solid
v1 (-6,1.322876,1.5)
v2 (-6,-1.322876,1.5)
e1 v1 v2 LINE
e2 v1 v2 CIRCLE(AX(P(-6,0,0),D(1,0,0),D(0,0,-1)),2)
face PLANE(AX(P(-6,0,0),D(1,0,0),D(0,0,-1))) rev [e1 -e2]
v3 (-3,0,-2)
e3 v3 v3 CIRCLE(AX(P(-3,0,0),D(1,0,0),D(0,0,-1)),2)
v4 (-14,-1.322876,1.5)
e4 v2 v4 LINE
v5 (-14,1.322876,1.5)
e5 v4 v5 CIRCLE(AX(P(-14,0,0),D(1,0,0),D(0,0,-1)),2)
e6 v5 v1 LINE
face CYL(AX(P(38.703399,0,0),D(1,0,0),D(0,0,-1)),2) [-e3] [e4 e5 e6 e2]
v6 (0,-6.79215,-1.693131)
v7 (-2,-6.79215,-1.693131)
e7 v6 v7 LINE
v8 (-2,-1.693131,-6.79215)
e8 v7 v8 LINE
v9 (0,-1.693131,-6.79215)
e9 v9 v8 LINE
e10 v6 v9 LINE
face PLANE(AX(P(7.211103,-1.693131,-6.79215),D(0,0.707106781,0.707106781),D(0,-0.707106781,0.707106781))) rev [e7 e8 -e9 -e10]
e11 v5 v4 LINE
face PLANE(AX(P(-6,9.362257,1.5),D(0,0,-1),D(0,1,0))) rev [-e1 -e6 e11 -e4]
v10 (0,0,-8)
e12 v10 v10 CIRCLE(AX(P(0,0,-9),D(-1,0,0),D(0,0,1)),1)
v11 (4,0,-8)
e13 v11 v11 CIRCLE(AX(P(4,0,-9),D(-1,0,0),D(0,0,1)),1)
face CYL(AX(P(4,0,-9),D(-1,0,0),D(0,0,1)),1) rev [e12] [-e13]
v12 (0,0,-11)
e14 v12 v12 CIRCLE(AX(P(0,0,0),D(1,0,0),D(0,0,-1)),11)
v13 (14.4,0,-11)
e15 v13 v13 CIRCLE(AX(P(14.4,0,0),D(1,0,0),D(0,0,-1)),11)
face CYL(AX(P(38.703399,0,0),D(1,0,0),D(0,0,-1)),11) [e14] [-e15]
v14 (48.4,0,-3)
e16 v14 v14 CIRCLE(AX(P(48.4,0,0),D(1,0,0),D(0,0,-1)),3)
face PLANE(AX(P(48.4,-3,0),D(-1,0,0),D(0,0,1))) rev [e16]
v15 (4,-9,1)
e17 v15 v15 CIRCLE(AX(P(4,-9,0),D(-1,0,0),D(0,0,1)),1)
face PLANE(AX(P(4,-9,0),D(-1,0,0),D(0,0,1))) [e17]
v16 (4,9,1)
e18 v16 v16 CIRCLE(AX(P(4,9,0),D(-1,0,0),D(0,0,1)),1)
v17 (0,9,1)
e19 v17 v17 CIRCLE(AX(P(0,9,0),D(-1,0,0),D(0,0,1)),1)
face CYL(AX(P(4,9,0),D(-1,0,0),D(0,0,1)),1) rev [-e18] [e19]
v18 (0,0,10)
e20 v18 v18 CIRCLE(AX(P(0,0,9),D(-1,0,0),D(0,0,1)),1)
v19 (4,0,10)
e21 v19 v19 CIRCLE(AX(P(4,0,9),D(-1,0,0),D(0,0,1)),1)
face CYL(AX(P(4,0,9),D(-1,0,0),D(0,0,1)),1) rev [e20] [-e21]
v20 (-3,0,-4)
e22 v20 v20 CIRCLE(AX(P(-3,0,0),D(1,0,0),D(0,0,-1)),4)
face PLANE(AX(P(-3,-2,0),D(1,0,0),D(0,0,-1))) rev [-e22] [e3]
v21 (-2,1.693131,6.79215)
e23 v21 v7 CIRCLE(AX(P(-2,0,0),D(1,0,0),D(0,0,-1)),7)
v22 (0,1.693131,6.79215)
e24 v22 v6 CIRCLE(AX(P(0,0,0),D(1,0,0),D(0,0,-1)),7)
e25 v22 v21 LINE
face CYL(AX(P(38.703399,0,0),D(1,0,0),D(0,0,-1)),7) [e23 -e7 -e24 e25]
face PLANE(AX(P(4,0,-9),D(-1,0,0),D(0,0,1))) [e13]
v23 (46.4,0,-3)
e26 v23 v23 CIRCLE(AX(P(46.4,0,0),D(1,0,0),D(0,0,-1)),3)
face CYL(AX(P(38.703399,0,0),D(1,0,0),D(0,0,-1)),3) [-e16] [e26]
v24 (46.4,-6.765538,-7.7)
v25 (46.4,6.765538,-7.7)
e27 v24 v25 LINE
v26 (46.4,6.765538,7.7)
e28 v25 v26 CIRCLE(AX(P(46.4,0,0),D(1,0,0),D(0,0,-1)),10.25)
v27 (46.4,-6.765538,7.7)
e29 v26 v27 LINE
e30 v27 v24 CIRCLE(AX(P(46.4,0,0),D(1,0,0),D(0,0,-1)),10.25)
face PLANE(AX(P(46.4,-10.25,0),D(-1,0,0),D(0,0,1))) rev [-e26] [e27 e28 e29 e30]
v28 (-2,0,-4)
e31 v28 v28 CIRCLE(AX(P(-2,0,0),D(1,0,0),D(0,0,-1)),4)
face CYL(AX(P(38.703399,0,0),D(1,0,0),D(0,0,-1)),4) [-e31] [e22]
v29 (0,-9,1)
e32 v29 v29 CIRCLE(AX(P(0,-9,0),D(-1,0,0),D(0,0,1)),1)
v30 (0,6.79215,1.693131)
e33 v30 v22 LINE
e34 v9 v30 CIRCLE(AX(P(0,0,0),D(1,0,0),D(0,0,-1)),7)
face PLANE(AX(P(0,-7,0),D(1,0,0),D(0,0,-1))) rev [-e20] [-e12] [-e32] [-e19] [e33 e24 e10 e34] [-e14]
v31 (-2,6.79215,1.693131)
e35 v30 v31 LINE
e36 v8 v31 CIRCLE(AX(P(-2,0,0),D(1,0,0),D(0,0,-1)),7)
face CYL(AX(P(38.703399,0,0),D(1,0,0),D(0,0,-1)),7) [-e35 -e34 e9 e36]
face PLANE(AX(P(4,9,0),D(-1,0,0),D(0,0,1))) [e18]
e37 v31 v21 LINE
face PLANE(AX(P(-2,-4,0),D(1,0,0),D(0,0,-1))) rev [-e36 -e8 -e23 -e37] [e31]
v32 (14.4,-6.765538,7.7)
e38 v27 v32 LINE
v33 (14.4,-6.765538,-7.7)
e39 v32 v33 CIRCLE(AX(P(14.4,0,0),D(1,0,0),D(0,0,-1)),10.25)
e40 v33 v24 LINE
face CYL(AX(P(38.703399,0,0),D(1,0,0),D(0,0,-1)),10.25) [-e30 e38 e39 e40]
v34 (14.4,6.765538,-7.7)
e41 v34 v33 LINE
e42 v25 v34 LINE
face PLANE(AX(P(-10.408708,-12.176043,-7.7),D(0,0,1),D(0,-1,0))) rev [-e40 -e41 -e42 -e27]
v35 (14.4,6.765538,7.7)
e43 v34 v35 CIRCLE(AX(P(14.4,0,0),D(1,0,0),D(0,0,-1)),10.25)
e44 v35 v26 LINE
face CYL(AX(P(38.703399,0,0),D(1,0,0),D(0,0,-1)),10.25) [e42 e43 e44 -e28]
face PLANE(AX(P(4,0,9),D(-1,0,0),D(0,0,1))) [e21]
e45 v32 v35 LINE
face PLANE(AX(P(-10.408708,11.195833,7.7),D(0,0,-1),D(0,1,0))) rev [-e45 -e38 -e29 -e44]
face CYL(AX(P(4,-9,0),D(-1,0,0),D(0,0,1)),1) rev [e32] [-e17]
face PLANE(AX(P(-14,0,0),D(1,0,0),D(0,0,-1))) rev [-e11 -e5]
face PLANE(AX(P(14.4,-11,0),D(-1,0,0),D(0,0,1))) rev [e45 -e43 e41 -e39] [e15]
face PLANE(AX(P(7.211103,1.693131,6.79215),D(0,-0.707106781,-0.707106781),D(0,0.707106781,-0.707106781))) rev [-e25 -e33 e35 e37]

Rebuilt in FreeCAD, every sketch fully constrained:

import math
import FreeCAD as App
import Part
import Sketcher

V = App.Vector
Q = App.Units.Quantity

doc = App.newDocument("Part")
params = doc.addObject("Spreadsheet::Sheet", "Params")
for row, (alias, value) in enumerate([
    ("sketch1_width", "11 mm"),
    ("sketch1_width2", "1 mm"),
    ("sketch1_width3", "2 mm"),
    ("sketch1_width4", "32 mm"),
    ("sketch1_height", "3 mm"),
    ("revolution_angle", "360 deg"),
    ("pocket1_length", "32 mm"),
    ("sketch3_radius", "7 mm"),
    ("pocket2_length", "2 mm"),
    ("sketch4_diameter", "2 mm"),
    ("pocket3_length", "4 mm"),
    ("pocket4_length", "8 mm"),
], start=1):
    params.set(f"A{row}", alias)
    params.set(f"B{row}", "=" + value)
    params.setAlias(f"B{row}", alias)

body = doc.addObject("PartDesign::Body", "Body")

# Sketch on XY plane
sketch1 = body.newObject("Sketcher::SketchObject", "Sketch")
sketch1.AttachmentSupport = (doc.getObject("XY_Plane"), [""])
sketch1.MapMode = "FlatFace"
sketch1.addGeometry(Part.LineSegment(V(-14, 0, 0), V(-14, -2, 0)), False)
sketch1.addGeometry(Part.LineSegment(V(-14, -2, 0), V(-3, -2, 0)), False)
sketch1.addGeometry(Part.LineSegment(V(-3, -2, 0), V(-3, -4, 0)), False)
sketch1.addGeometry(Part.LineSegment(V(-3, -4, 0), V(-2, -4, 0)), False)
sketch1.addGeometry(Part.LineSegment(V(-2, -4, 0), V(-2, -7, 0)), False)
sketch1.addGeometry(Part.LineSegment(V(-2, -7, 0), V(0, -7, 0)), False)
sketch1.addGeometry(Part.LineSegment(V(0, -7, 0), V(0, -11, 0)), False)
sketch1.addGeometry(Part.LineSegment(V(0, -11, 0), V(14.4, -11, 0)), False)
sketch1.addGeometry(Part.LineSegment(V(14.4, -11, 0), V(14.4, -10.2, 0)), False)
sketch1.addGeometry(Part.LineSegment(V(14.4, -10.2, 0), V(46.4, -10.2, 0)), False)
sketch1.addGeometry(Part.LineSegment(V(46.4, -10.2, 0), V(46.4, -3, 0)), False)
sketch1.addGeometry(Part.LineSegment(V(46.4, -3, 0), V(48.4, -3, 0)), False)
sketch1.addGeometry(Part.LineSegment(V(48.4, -3, 0), V(48.4, 0, 0)), False)
sketch1.addGeometry(Part.LineSegment(V(48.4, 0, 0), V(-14, 0, 0)), False)
sketch1.addConstraint(Sketcher.Constraint("Coincident", 0, 2, 1, 1))
sketch1.addConstraint(Sketcher.Constraint("Coincident", 1, 2, 2, 1))
sketch1.addConstraint(Sketcher.Constraint("Coincident", 2, 2, 3, 1))
sketch1.addConstraint(Sketcher.Constraint("Coincident", 3, 2, 4, 1))
sketch1.addConstraint(Sketcher.Constraint("Coincident", 4, 2, 5, 1))
sketch1.addConstraint(Sketcher.Constraint("Coincident", 5, 2, 6, 1))
sketch1.addConstraint(Sketcher.Constraint("Coincident", 6, 2, 7, 1))
sketch1.addConstraint(Sketcher.Constraint("Coincident", 7, 2, 8, 1))
sketch1.addConstraint(Sketcher.Constraint("Coincident", 8, 2, 9, 1))
sketch1.addConstraint(Sketcher.Constraint("Coincident", 9, 2, 10, 1))
sketch1.addConstraint(Sketcher.Constraint("Coincident", 10, 2, 11, 1))
sketch1.addConstraint(Sketcher.Constraint("Coincident", 11, 2, 12, 1))
sketch1.addConstraint(Sketcher.Constraint("Coincident", 12, 2, 13, 1))
sketch1.addConstraint(Sketcher.Constraint("Coincident", 13, 2, 0, 1))
sketch1.addConstraint(Sketcher.Constraint("Vertical", 0))
sketch1.addConstraint(Sketcher.Constraint("Horizontal", 1))
sketch1.addConstraint(Sketcher.Constraint("Vertical", 2))
sketch1.addConstraint(Sketcher.Constraint("Horizontal", 3))
sketch1.addConstraint(Sketcher.Constraint("Vertical", 4))
sketch1.addConstraint(Sketcher.Constraint("Horizontal", 5))
sketch1.addConstraint(Sketcher.Constraint("Vertical", 6))
sketch1.addConstraint(Sketcher.Constraint("Horizontal", 7))
sketch1.addConstraint(Sketcher.Constraint("Vertical", 8))
sketch1.addConstraint(Sketcher.Constraint("Horizontal", 9))
sketch1.addConstraint(Sketcher.Constraint("Vertical", 10))
sketch1.addConstraint(Sketcher.Constraint("Horizontal", 11))
sketch1.addConstraint(Sketcher.Constraint("Vertical", 12))
sketch1.addConstraint(Sketcher.Constraint("Horizontal", 13))
sketch1.addConstraint(Sketcher.Constraint("PointOnObject", 5, 2, -2))
sketch1.addConstraint(Sketcher.Constraint("PointOnObject", 12, 2, -1))
sketch1.addConstraint(Sketcher.Constraint("Equal", 5, 11))
sketch1.addConstraint(Sketcher.Constraint("Equal", 11, 0))
sketch1.addConstraint(Sketcher.Constraint("Equal", 0, 2))
sketch1.addConstraint(Sketcher.Constraint("Equal", 4, 12))
sketch1.addConstraint(Sketcher.Constraint("DistanceX", 1, 1, 1, 2, Q("11 mm")))
sketch1.addConstraint(Sketcher.Constraint("DistanceX", 3, 1, 3, 2, Q("1 mm")))
sketch1.addConstraint(Sketcher.Constraint("DistanceX", 5, 1, 5, 2, Q("2 mm")))
sketch1.addConstraint(Sketcher.Constraint("DistanceX", 9, 1, 9, 2, Q("32 mm")))
sketch1.addConstraint(Sketcher.Constraint("DistanceY", 4, 2, 4, 1, Q("3 mm")))
sketch1.addConstraint(Sketcher.Constraint("DistanceY", 6, 2, 6, 1, Q("4 mm")))
sketch1.addConstraint(Sketcher.Constraint("DistanceX", 7, 1, 7, 2, Q("14.4 mm")))
sketch1.addConstraint(Sketcher.Constraint("DistanceY", 8, 1, 8, 2, Q("0.75 mm")))
sketch1.setExpression("Constraints[34]", "Params.sketch1_width")
sketch1.setExpression("Constraints[35]", "Params.sketch1_width2")
sketch1.setExpression("Constraints[36]", "Params.sketch1_width3")
sketch1.setExpression("Constraints[37]", "Params.sketch1_width4")
sketch1.setExpression("Constraints[38]", "Params.sketch1_height")
revolution = body.newObject("PartDesign::Revolution", "Revolution")
revolution.Profile = sketch1
revolution.ReferenceAxis = (sketch1, ["H_Axis"])
revolution.setExpression("Angle", "Params.revolution_angle")

# Sketch on YZ plane
sketch2 = body.newObject("Sketcher::SketchObject", "Sketch001")
sketch2.AttachmentSupport = (doc.getObject("YZ_Plane"), [""])
sketch2.MapMode = "FlatFace"
sketch2.AttachmentOffset = App.Placement(V(0, 0, 46.4), App.Rotation())
sketch2.addGeometry(Part.LineSegment(V(11, 16, 0), V(-12, 16, 0)), False)
sketch2.addGeometry(Part.LineSegment(V(-12, 16, 0), V(-12, 8, 0)), False)
sketch2.addGeometry(Part.LineSegment(V(-12, 8, 0), V(11, 8, 0)), False)
sketch2.addGeometry(Part.LineSegment(V(11, 8, 0), V(11, 16, 0)), False)
sketch2.addGeometry(Part.LineSegment(V(11, -8, 0), V(-12, -8, 0)), False)
sketch2.addGeometry(Part.LineSegment(V(-12, -8, 0), V(-12, -16, 0)), False)
sketch2.addGeometry(Part.LineSegment(V(-12, -16, 0), V(11, -16, 0)), False)
sketch2.addGeometry(Part.LineSegment(V(11, -16, 0), V(11, -8, 0)), False)
sketch2.addConstraint(Sketcher.Constraint("Coincident", 0, 2, 1, 1))
sketch2.addConstraint(Sketcher.Constraint("Coincident", 1, 2, 2, 1))
sketch2.addConstraint(Sketcher.Constraint("Coincident", 2, 2, 3, 1))
sketch2.addConstraint(Sketcher.Constraint("Coincident", 3, 2, 0, 1))
sketch2.addConstraint(Sketcher.Constraint("Coincident", 4, 2, 5, 1))
sketch2.addConstraint(Sketcher.Constraint("Coincident", 5, 2, 6, 1))
sketch2.addConstraint(Sketcher.Constraint("Coincident", 6, 2, 7, 1))
sketch2.addConstraint(Sketcher.Constraint("Coincident", 7, 2, 4, 1))
sketch2.addConstraint(Sketcher.Constraint("Horizontal", 0))
sketch2.addConstraint(Sketcher.Constraint("Vertical", 1))
sketch2.addConstraint(Sketcher.Constraint("Horizontal", 2))
sketch2.addConstraint(Sketcher.Constraint("Vertical", 3))
sketch2.addConstraint(Sketcher.Constraint("Horizontal", 4))
sketch2.addConstraint(Sketcher.Constraint("Vertical", 5))
sketch2.addConstraint(Sketcher.Constraint("Horizontal", 6))
sketch2.addConstraint(Sketcher.Constraint("Vertical", 7))
sketch2.addConstraint(Sketcher.Constraint("Symmetric", 1, 2, 4, 2, -1))
sketch2.addConstraint(Sketcher.Constraint("Vertical", 3, 2, 6, 2))
sketch2.addConstraint(Sketcher.Constraint("DistanceY", -1, 1, 1, 2, Q("7.7 mm")))
sketch2.addConstraint(Sketcher.Constraint("DistanceX", 0, 2, 0, 1, Q("23.371875 mm")))
sketch2.addConstraint(Sketcher.Constraint("DistanceY", 1, 2, 1, 1, Q("8.320303 mm")))
sketch2.addConstraint(Sketcher.Constraint("DistanceY", 5, 2, 5, 1, Q("7.922092 mm")))
sketch2.addConstraint(Sketcher.Constraint("DistanceX", 0, 2, -1, 1, Q("12.176043 mm")))
pocket1 = body.newObject("PartDesign::Pocket", "Pocket")
pocket1.Profile = sketch2
pocket1.setExpression("Length", "Params.pocket1_length")

# Sketch on YZ plane
sketch3 = body.newObject("Sketcher::SketchObject", "Sketch002")
sketch3.AttachmentSupport = (doc.getObject("YZ_Plane"), [""])
sketch3.MapMode = "FlatFace"
sketch3.addGeometry(Part.LineSegment(V(7, 2, 0), V(2, 7, 0)), False)
sketch3.addGeometry(Part.ArcOfCircle(Part.Circle(V(0, 0, 0), V(0, 0, 1), 7), math.radians(14), math.radians(76)), False)
sketch3.addGeometry(Part.LineSegment(V(-7, -2, 0), V(-2, -7, 0)), False)
sketch3.addGeometry(Part.ArcOfCircle(Part.Circle(V(0, 0, 0), V(0, 0, 1), 7), math.radians(-166), math.radians(-104)), False)
sketch3.addConstraint(Sketcher.Constraint("Coincident", 0, 1, 1, 1))
sketch3.addConstraint(Sketcher.Constraint("Coincident", 1, 2, 0, 2))
sketch3.addConstraint(Sketcher.Constraint("Coincident", 2, 1, 3, 1))
sketch3.addConstraint(Sketcher.Constraint("Coincident", 3, 2, 2, 2))
sketch3.addConstraint(Sketcher.Constraint("Coincident", 1, 3, -1, 1))
sketch3.addConstraint(Sketcher.Constraint("Coincident", 3, 3, -1, 1))
sketch3.addConstraint(Sketcher.Constraint("Equal", 1, 3))
sketch3.addConstraint(Sketcher.Constraint("Parallel", 0, 2))
sketch3.addConstraint(Sketcher.Constraint("Equal", 0, 2))
sketch3.addConstraint(Sketcher.Constraint("Radius", 1, Q("7 mm")))
sketch3.addConstraint(Sketcher.Constraint("Angle", 0, Q("135 deg")))
sketch3.addConstraint(Sketcher.Constraint("DistanceX", 2, 1, 0, 1, Q("13.584301 mm")))
sketch3.setExpression("Constraints[9]", "Params.sketch3_radius")
pocket2 = body.newObject("PartDesign::Pocket", "Pocket001")
pocket2.Profile = sketch3
pocket2.setExpression("Length", "Params.pocket2_length")

# Sketch on YZ plane
sketch4 = body.newObject("Sketcher::SketchObject", "Sketch003")
sketch4.AttachmentSupport = (doc.getObject("YZ_Plane"), [""])
sketch4.MapMode = "FlatFace"
sketch4.addGeometry(Part.Circle(V(9, 0, 0), V(0, 0, 1), 1), False)
sketch4.addGeometry(Part.Circle(V(0, -9, 0), V(0, 0, 1), 1), False)
sketch4.addGeometry(Part.Circle(V(-9, 0, 0), V(0, 0, 1), 1), False)
sketch4.addGeometry(Part.Circle(V(0, 9, 0), V(0, 0, 1), 1), False)
sketch4.addConstraint(Sketcher.Constraint("Equal", 0, 1))
sketch4.addConstraint(Sketcher.Constraint("Equal", 1, 2))
sketch4.addConstraint(Sketcher.Constraint("Equal", 2, 3))
sketch4.addConstraint(Sketcher.Constraint("Symmetric", 0, 3, 2, 3, -1, 1))
sketch4.addConstraint(Sketcher.Constraint("Symmetric", 1, 3, 3, 3, -1, 1))
sketch4.addConstraint(Sketcher.Constraint("PointOnObject", 0, 3, -1))
sketch4.addConstraint(Sketcher.Constraint("PointOnObject", 1, 3, -2))
sketch4.addConstraint(Sketcher.Constraint("Diameter", 0, Q("2 mm")))
sketch4.addConstraint(Sketcher.Constraint("DistanceX", -1, 1, 0, 3, Q("9 mm")))
sketch4.addConstraint(Sketcher.Constraint("DistanceY", 1, 3, -1, 1, Q("9 mm")))
sketch4.setExpression("Constraints[7]", "Params.sketch4_diameter")
pocket3 = body.newObject("PartDesign::Pocket", "Pocket002")
pocket3.Profile = sketch4
pocket3.setExpression("Length", "Params.pocket3_length")
pocket3.Reversed = True

# Sketch on YZ plane
sketch5 = body.newObject("Sketcher::SketchObject", "Sketch004")
sketch5.AttachmentSupport = (doc.getObject("YZ_Plane"), [""])
sketch5.MapMode = "FlatFace"
sketch5.AttachmentOffset = App.Placement(V(0, 0, -14), App.Rotation())
sketch5.addGeometry(Part.LineSegment(V(9, 2, 0), V(-6, 2, 0)), False)
sketch5.addGeometry(Part.LineSegment(V(-6, 2, 0), V(-6, 14, 0)), False)
sketch5.addGeometry(Part.LineSegment(V(-6, 14, 0), V(9, 14, 0)), False)
sketch5.addGeometry(Part.LineSegment(V(9, 14, 0), V(9, 2, 0)), False)
sketch5.addConstraint(Sketcher.Constraint("Coincident", 0, 2, 1, 1))
sketch5.addConstraint(Sketcher.Constraint("Coincident", 1, 2, 2, 1))
sketch5.addConstraint(Sketcher.Constraint("Coincident", 2, 2, 3, 1))
sketch5.addConstraint(Sketcher.Constraint("Coincident", 3, 2, 0, 1))
sketch5.addConstraint(Sketcher.Constraint("Horizontal", 0))
sketch5.addConstraint(Sketcher.Constraint("Vertical", 1))
sketch5.addConstraint(Sketcher.Constraint("Horizontal", 2))
sketch5.addConstraint(Sketcher.Constraint("Vertical", 3))
sketch5.addConstraint(Sketcher.Constraint("DistanceY", -1, 1, 0, 2, Q("1.5 mm")))
sketch5.addConstraint(Sketcher.Constraint("DistanceX", 0, 2, 0, 1, Q("15.162705 mm")))
sketch5.addConstraint(Sketcher.Constraint("DistanceY", 1, 1, 1, 2, Q("12.730996 mm")))
sketch5.addConstraint(Sketcher.Constraint("DistanceX", 0, 2, -1, 1, Q("5.800448 mm")))
pocket4 = body.newObject("PartDesign::Pocket", "Pocket003")
pocket4.Profile = sketch5
pocket4.setExpression("Length", "Params.pocket4_length")
pocket4.Reversed = True

doc.recompute()
